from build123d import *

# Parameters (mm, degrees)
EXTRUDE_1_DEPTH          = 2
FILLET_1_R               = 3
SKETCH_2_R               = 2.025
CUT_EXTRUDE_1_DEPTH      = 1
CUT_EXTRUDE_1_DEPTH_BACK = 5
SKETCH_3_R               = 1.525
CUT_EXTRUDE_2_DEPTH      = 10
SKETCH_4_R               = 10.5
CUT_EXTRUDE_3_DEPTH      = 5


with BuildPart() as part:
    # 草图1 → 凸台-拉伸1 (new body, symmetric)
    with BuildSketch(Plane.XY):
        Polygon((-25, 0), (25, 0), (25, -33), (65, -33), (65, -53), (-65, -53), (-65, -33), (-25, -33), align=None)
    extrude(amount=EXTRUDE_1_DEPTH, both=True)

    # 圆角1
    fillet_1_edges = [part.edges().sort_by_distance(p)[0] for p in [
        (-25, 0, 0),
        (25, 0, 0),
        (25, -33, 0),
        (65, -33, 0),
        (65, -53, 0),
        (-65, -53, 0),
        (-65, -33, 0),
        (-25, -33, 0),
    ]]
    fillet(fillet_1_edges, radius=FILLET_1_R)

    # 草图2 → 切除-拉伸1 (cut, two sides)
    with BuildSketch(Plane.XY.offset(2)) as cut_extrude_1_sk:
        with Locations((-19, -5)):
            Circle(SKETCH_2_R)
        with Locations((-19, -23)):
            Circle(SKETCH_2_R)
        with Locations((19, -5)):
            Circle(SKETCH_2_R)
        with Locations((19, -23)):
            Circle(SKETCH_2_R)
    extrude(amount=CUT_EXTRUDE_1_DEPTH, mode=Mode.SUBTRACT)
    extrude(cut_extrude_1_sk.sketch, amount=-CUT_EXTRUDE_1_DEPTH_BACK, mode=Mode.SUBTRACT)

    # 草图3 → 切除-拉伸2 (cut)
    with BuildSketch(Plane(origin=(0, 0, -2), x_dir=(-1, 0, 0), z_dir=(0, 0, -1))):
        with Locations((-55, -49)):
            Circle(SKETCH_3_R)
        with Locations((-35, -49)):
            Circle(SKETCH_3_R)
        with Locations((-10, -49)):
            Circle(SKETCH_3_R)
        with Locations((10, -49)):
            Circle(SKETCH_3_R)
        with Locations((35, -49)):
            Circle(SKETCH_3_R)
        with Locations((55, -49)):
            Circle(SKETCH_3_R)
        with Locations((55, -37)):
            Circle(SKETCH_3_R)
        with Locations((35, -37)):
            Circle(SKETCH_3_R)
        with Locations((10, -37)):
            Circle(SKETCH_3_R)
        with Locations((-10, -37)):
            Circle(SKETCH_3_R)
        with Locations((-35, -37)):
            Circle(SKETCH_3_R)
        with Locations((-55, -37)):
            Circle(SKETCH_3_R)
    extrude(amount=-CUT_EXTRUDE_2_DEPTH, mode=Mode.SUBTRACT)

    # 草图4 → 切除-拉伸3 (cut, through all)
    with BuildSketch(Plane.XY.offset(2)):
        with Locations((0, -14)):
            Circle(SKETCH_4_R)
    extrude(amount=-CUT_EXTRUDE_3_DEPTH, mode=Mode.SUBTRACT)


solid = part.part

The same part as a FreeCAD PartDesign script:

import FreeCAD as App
import Part
import Sketcher
from FreeCAD import Vector
Q = App.Units.Quantity


def edges_at(feature, points):
    """Names of the edges that pass closest to the given points."""
    edges = feature.Shape.Edges
    near = lambda p: min(range(len(edges)), key=lambda i: edges[i].distToShape(Part.Vertex(*p))[0])
    return sorted({f"Edge{near(p) + 1}" for p in points})

doc = App.newDocument("Part")
body = doc.addObject("PartDesign::Body", "Body")

# Sketch on XY plane
sketch1 = body.newObject("Sketcher::SketchObject", "Sketch")
sketch1.AttachmentSupport = (doc.getObject("XY_Plane"), [""])
sketch1.MapMode = "FlatFace"
sketch1.addGeometry([
    Part.LineSegment(Vector(25, 0, 0), Vector(-25, 0, 0)),  # 0
    Part.LineSegment(Vector(-25, 0, 0), Vector(-25, -33, 0)),  # 1
    Part.LineSegment(Vector(-25, -33, 0), Vector(-65, -33, 0)),  # 2
    Part.LineSegment(Vector(-65, -33, 0), Vector(-65, -53, 0)),  # 3
    Part.LineSegment(Vector(-65, -53, 0), Vector(65, -53, 0)),  # 4
    Part.LineSegment(Vector(65, -53, 0), Vector(65, -33, 0)),  # 5
    Part.LineSegment(Vector(65, -33, 0), Vector(25, -33, 0)),  # 6
    Part.LineSegment(Vector(25, -33, 0), Vector(25, 0, 0)),  # 7
], False)
sketch1.addConstraint([
    Sketcher.Constraint("Coincident", 0, 2, 1, 1),
    Sketcher.Constraint("Coincident", 1, 2, 2, 1),
    Sketcher.Constraint("Coincident", 2, 2, 3, 1),
    Sketcher.Constraint("Coincident", 3, 2, 4, 1),
    Sketcher.Constraint("Coincident", 4, 2, 5, 1),
    Sketcher.Constraint("Coincident", 5, 2, 6, 1),
    Sketcher.Constraint("Coincident", 6, 2, 7, 1),
    Sketcher.Constraint("Coincident", 7, 2, 0, 1),
    Sketcher.Constraint("Horizontal", 0),
    Sketcher.Constraint("Vertical", 1),
    Sketcher.Constraint("Horizontal", 2),
    Sketcher.Constraint("Vertical", 3),
    Sketcher.Constraint("Horizontal", 4),
    Sketcher.Constraint("Vertical", 5),
    Sketcher.Constraint("Horizontal", 6),
    Sketcher.Constraint("Vertical", 7),
    Sketcher.Constraint("Symmetric", 0, 2, 7, 2, -1, 1),
    Sketcher.Constraint("Symmetric", 2, 2, 5, 2, -2),
    Sketcher.Constraint("DistanceX", 0, 2, 0, 1, Q("50 mm")),
    Sketcher.Constraint("DistanceX", 2, 2, 2, 1, Q("40 mm")),
    Sketcher.Constraint("DistanceY", 1, 2, 1, 1, Q("33 mm")),
    Sketcher.Constraint("DistanceY", 3, 2, 3, 1, Q("20 mm")),
])
pad1 = body.newObject("PartDesign::Pad", "Pad")
pad1.Profile = sketch1
pad1.Length = 4
pad1.Midplane = True
doc.recompute()

fillet = body.newObject("PartDesign::Fillet", "Fillet")
fillet.Base = (pad1, edges_at(pad1, [
    (-25, 0, 0),
    (25, 0, 0),
    (25, -33, 0),
    (65, -33, 0),
    (65, -53, 0),
    (-65, -53, 0),
    (-65, -33, 0),
    (-25, -33, 0),
]))
fillet.Radius = 3

# Sketch on XY plane
sketch2 = body.newObject("Sketcher::SketchObject", "Sketch001")
sketch2.AttachmentSupport = (doc.getObject("XY_Plane"), [""])
sketch2.MapMode = "FlatFace"
sketch2.AttachmentOffset = App.Placement(Vector(0, 0, 2), App.Rotation())
sketch2.addGeometry([
    Part.Circle(Vector(-19, -5, 0), Vector(0, 0, 1), 2),
    Part.Circle(Vector(-19, -23, 0), Vector(0, 0, 1), 2),
    Part.Circle(Vector(19, -5, 0), Vector(0, 0, 1), 2),
    Part.Circle(Vector(19, -23, 0), Vector(0, 0, 1), 2),
], False)
sketch2.addConstraint([
    Sketcher.Constraint("Equal", 0, 1),
    Sketcher.Constraint("Equal", 1, 2),
    Sketcher.Constraint("Equal", 2, 3),
    Sketcher.Constraint("Symmetric", 0, 3, 2, 3, -2),
    Sketcher.Constraint("Symmetric", 1, 3, 3, 3, -2),
    Sketcher.Constraint("Vertical", 0, 3, 1, 3),
    Sketcher.Constraint("Diameter", 0, Q("4.05 mm")),
    Sketcher.Constraint("DistanceX", 0, 3, -1, 1, Q("19 mm")),
    Sketcher.Constraint("DistanceY", 0, 3, -1, 1, Q("5 mm")),
    Sketcher.Constraint("DistanceY", 1, 3, -1, 1, Q("23 mm")),
])
pocket1 = body.newObject("PartDesign::Pocket", "Pocket")
pocket1.Profile = sketch2
pocket1.Type = "ThroughAll"
pocket1.Midplane = True

# Sketch on XY plane
sketch3 = body.newObject("Sketcher::SketchObject", "Sketch002")
sketch3.AttachmentSupport = (doc.getObject("XY_Plane"), [""])
sketch3.MapMode = "FlatFace"
sketch3.AttachmentOffset = App.Placement(Vector(0, 0, -2), App.Rotation())
sketch3.addGeometry([
    Part.Circle(Vector(55, -49, 0), Vector(0, 0, 1), 1.5),  # 0
    Part.Circle(Vector(35, -49, 0), Vector(0, 0, 1), 1.5),  # 1
    Part.Circle(Vector(10, -49, 0), Vector(0, 0, 1), 1.5),  # 2
    Part.Circle(Vector(-10, -49, 0), Vector(0, 0, 1), 1.5),  # 3
    Part.Circle(Vector(-35, -49, 0), Vector(0, 0, 1), 1.5),  # 4
    Part.Circle(Vector(-55, -49, 0), Vector(0, 0, 1), 1.5),  # 5
    Part.Circle(Vector(-55, -37, 0), Vector(0, 0, 1), 1.5),  # 6
    Part.Circle(Vector(-35, -37, 0), Vector(0, 0, 1), 1.5),  # 7
    Part.Circle(Vector(-10, -37, 0), Vector(0, 0, 1), 1.5),  # 8
    Part.Circle(Vector(10, -37, 0), Vector(0, 0, 1), 1.5),  # 9
    Part.Circle(Vector(35, -37, 0), Vector(0, 0, 1), 1.5),  # 10
    Part.Circle(Vector(55, -37, 0), Vector(0, 0, 1), 1.5),  # 11
], False)
sketch3.addConstraint([
    Sketcher.Constraint("Equal", 0, 1),
    Sketcher.Constraint("Equal", 1, 2),
    Sketcher.Constraint("Equal", 2, 3),
    Sketcher.Constraint("Equal", 3, 4),
    Sketcher.Constraint("Equal", 4, 5),
    Sketcher.Constraint("Equal", 5, 6),
    Sketcher.Constraint("Equal", 6, 7),
    Sketcher.Constraint("Equal", 7, 8),
    Sketcher.Constraint("Equal", 8, 9),
    Sketcher.Constraint("Equal", 9, 10),
    Sketcher.Constraint("Equal", 10, 11),
    Sketcher.Constraint("Symmetric", 2, 3, 3, 3, -2),
    Sketcher.Constraint("Symmetric", 1, 3, 4, 3, -2),
    Sketcher.Constraint("Symmetric", 0, 3, 5, 3, -2),
    Sketcher.Constraint("Symmetric", 8, 3, 9, 3, -2),
    Sketcher.Constraint("Symmetric", 7, 3, 10, 3, -2),
    Sketcher.Constraint("Symmetric", 6, 3, 11, 3, -2),
    Sketcher.Constraint("Horizontal", 0, 3, 1, 3),
    Sketcher.Constraint("Horizontal", 1, 3, 2, 3),
    Sketcher.Constraint("Horizontal", 6, 3, 7, 3),
    Sketcher.Constraint("Horizontal", 7, 3, 8, 3),
    Sketcher.Constraint("Vertical", 5, 3, 6, 3),
    Sketcher.Constraint("Vertical", 4, 3, 7, 3),
    Sketcher.Constraint("Vertical", 3, 3, 8, 3),
    Sketcher.Constraint("Diameter", 0, Q("3.05 mm")),
    Sketcher.Constraint("DistanceX", -1, 1, 0, 3, Q("55 mm")),
    Sketcher.Constraint("DistanceY", 0, 3, -1, 1, Q("49 mm")),
    Sketcher.Constraint("DistanceX", -1, 1, 1, 3, Q("35 mm")),
    Sketcher.Constraint("DistanceX", -1, 1, 2, 3, Q("10 mm")),
    Sketcher.Constraint("DistanceY", 6, 3, -1, 1, Q("37 mm")),
])
pocket2 = body.newObject("PartDesign::Pocket", "Pocket001")
pocket2.Profile = sketch3
pocket2.Length = 10
pocket2.Reversed = True

# Sketch on XY plane
sketch4 = body.newObject("Sketcher::SketchObject", "Sketch003")
sketch4.AttachmentSupport = (doc.getObject("XY_Plane"), [""])
sketch4.MapMode = "FlatFace"
sketch4.AttachmentOffset = App.Placement(Vector(0, 0, 2), App.Rotation())
sketch4.addGeometry(Part.Circle(Vector(0, -14, 0), Vector(0, 0, 1), 10), False)
sketch4.addConstraint([
    Sketcher.Constraint("PointOnObject", 0, 3, -2),
    Sketcher.Constraint("Diameter", 0, Q("21 mm")),
    Sketcher.Constraint("DistanceY", 0, 3, -1, 1, Q("14 mm")),
])
pocket3 = body.newObject("PartDesign::Pocket", "Pocket002")
pocket3.Profile = sketch4
pocket3.Type = "ThroughAll"

doc.recompute()
